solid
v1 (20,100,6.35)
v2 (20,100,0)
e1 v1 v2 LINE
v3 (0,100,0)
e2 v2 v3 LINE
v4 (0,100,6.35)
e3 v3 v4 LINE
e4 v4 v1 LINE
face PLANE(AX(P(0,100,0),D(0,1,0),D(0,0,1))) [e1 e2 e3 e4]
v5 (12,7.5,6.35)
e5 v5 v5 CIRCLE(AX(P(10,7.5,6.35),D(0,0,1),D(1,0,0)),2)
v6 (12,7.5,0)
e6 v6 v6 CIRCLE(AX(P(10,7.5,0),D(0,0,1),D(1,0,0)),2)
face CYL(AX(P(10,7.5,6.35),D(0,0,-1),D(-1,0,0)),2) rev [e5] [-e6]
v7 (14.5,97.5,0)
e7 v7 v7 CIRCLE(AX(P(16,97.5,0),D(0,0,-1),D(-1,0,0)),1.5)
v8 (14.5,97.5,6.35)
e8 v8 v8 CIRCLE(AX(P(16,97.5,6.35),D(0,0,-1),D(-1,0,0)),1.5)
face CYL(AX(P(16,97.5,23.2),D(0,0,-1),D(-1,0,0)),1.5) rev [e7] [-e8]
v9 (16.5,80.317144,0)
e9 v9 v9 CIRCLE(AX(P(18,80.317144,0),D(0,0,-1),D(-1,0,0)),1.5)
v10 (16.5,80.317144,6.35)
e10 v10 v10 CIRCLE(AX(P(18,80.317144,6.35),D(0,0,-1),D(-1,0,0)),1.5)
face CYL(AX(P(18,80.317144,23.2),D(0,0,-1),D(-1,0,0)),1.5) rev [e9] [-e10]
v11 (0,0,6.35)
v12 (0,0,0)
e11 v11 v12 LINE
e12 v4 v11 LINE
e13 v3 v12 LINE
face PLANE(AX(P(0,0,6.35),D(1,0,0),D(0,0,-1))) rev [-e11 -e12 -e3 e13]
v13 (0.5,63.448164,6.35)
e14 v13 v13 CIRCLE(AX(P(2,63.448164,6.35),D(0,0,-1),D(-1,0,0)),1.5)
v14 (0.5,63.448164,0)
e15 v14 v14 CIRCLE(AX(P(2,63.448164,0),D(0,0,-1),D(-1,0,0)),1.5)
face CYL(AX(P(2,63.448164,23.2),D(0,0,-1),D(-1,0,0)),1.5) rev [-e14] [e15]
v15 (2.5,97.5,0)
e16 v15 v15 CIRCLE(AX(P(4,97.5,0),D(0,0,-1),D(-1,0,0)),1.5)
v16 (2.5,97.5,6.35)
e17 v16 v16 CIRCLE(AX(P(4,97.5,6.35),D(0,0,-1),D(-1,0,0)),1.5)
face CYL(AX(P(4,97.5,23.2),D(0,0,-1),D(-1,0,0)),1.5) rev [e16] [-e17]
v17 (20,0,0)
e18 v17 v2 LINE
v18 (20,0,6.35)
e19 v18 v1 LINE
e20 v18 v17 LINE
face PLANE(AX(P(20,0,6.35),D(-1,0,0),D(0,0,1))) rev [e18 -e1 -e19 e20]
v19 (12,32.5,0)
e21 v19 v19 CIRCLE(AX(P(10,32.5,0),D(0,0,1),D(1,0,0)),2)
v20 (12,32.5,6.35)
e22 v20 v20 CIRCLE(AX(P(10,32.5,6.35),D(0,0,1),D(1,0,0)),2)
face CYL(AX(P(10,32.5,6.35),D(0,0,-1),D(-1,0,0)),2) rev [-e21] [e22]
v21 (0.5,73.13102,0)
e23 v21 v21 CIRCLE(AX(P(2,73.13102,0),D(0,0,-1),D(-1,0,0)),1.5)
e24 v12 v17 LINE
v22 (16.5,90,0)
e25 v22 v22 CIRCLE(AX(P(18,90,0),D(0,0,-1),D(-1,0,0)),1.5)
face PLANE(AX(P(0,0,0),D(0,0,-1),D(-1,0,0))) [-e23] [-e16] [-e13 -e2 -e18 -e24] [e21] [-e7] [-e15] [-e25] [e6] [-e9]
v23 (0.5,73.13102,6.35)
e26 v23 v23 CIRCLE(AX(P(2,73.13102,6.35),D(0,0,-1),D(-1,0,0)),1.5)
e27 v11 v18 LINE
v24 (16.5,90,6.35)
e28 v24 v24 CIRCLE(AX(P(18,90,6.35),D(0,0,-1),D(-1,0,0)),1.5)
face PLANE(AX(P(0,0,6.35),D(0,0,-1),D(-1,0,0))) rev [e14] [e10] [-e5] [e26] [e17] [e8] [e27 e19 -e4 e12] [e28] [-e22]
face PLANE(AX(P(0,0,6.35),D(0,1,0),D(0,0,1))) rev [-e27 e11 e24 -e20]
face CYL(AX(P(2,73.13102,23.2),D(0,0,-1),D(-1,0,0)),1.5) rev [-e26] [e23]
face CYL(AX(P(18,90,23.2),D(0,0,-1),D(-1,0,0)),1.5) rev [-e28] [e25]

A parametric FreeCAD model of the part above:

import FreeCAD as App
import Part
import Sketcher

V = App.Vector
Q = App.Units.Quantity


def add_polygon(sketch, points):
    """Adds a closed chain of lines whose ends are joined by coincident constraints."""
    first, n = sketch.GeometryCount, len(points)
    for a, b in zip(points, points[1:] + points[:1]):
        sketch.addGeometry(Part.LineSegment(App.Vector(*a, 0), App.Vector(*b, 0)), False)
    for i in range(n):
        sketch.addConstraint(Sketcher.Constraint("Coincident", first + i, 2, first + (i + 1) % n, 1))

doc = App.newDocument("Part")
params = doc.addObject("Spreadsheet::Sheet", "Params")
for row, (alias, value) in enumerate([
    ("sketch1_diameter", "4 mm"),
    ("sketch1_width", "20 mm"),
    ("sketch1_height", "40 mm"),
    ("pad1_length", "6.35 mm"),
    ("sketch2_width", "20 mm"),
    ("sketch2_height", "6.35 mm"),
    ("pad2_length", "60 mm"),
    ("sketch3_diameter", "3 mm"),
    ("pocket1_length", "23.2 mm"),
], start=1):
    params.set(f"A{row}", alias)
    params.set(f"B{row}", "=" + value)
    params.setAlias(f"B{row}", alias)

body = doc.addObject("PartDesign::Body", "Body")

# Sketch on XY plane
sketch1 = body.newObject("Sketcher::SketchObject", "Sketch")
sketch1.AttachmentSupport = (doc.getObject("XY_Plane"), [""])
sketch1.MapMode = "FlatFace"
add_polygon(sketch1, [(0, 40), (0, 0), (20, 0), (20, 40)])  # lines 0-3
sketch1.addGeometry(Part.Circle(V(10, 7.5, 0), V(0, 0, 1), 2), False)  # 4
sketch1.addGeometry(Part.Circle(V(10, 32.5, 0), V(0, 0, 1), 2), False)  # 5
sketch1.addConstraint([
    Sketcher.Constraint("Vertical", 0),
    Sketcher.Constraint("Horizontal", 1),
    Sketcher.Constraint("Vertical", 2),
    Sketcher.Constraint("Horizontal", 3),
    Sketcher.Constraint("Coincident", 0, 2, -1, 1),
    Sketcher.Constraint("Equal", 4, 5),
    Sketcher.Constraint("Vertical", 4, 3, 5, 3),
    Sketcher.Constraint("Diameter", 4, Q("4 mm")),
    Sketcher.Constraint("DistanceX", 1, 1, 1, 2, Q("20 mm")),
    Sketcher.Constraint("DistanceY", 0, 2, 0, 1, Q("40 mm")),
    Sketcher.Constraint("DistanceX", -1, 1, 4, 3, Q("10 mm")),
    Sketcher.Constraint("DistanceY", 4, 3, 5, 3, Q("25 mm")),
    Sketcher.Constraint("DistanceY", -1, 1, 4, 3, Q("7.5 mm")),
])
sketch1.setExpression("Constraints[11]", "Params.sketch1_diameter")
sketch1.setExpression("Constraints[12]", "Params.sketch1_width")
sketch1.setExpression("Constraints[13]", "Params.sketch1_height")
pad1 = body.newObject("PartDesign::Pad", "Pad")
pad1.Profile = sketch1
pad1.setExpression("Length", "Params.pad1_length")

# Sketch on XZ plane
sketch2 = body.newObject("Sketcher::SketchObject", "Sketch001")
sketch2.AttachmentSupport = (doc.getObject("XZ_Plane"), [""])
sketch2.MapMode = "FlatFace"
sketch2.AttachmentOffset = App.Placement(V(0, 0, -40), App.Rotation())
add_polygon(sketch2, [(0, 0), (0, 6), (20, 6), (20, 0)])  # lines 0-3
sketch2.addConstraint([
    Sketcher.Constraint("Vertical", 0),
    Sketcher.Constraint("Horizontal", 1),
    Sketcher.Constraint("Vertical", 2),
    Sketcher.Constraint("Horizontal", 3),
    Sketcher.Constraint("Coincident", 3, 2, -1, 1),
    Sketcher.Constraint("DistanceX", 1, 1, 1, 2, Q("20 mm")),
    Sketcher.Constraint("DistanceY", 0, 1, 0, 2, Q("6.35 mm")),
])
sketch2.setExpression("Constraints[9]", "Params.sketch2_width")
sketch2.setExpression("Constraints[10]", "Params.sketch2_height")
pad2 = body.newObject("PartDesign::Pad", "Pad001")
pad2.Profile = sketch2
pad2.setExpression("Length", "Params.pad2_length")
pad2.Reversed = True

# Sketch on XY plane
sketch3 = body.newObject("Sketcher::SketchObject", "Sketch002")
sketch3.AttachmentSupport = (doc.getObject("XY_Plane"), [""])
sketch3.MapMode = "FlatFace"
sketch3.addGeometry([
    Part.Circle(V(16, 97.5, 0), V(0, 0, 1), 1.5),  # 0
    Part.Circle(V(4, 97.5, 0), V(0, 0, 1), 1.5),  # 1
    Part.Circle(V(18, 90, 0), V(0, 0, 1), 1.5),  # 2
    Part.Circle(V(2, 63.4, 0), V(0, 0, 1), 1.5),  # 3
    Part.Circle(V(2, 73.1, 0), V(0, 0, 1), 1.5),  # 4
    Part.Circle(V(18, 80.3, 0), V(0, 0, 1), 1.5),  # 5
], False)
sketch3.addConstraint([
    Sketcher.Constraint("Equal", 0, 1),
    Sketcher.Constraint("Equal", 1, 2),
    Sketcher.Constraint("Equal", 2, 3),
    Sketcher.Constraint("Equal", 3, 4),
    Sketcher.Constraint("Equal", 4, 5),
    Sketcher.Constraint("Horizontal", 0, 3, 1, 3),
    Sketcher.Constraint("Vertical", 3, 3, 4, 3),
    Sketcher.Constraint("Vertical", 2, 3, 5, 3),
    Sketcher.Constraint("Diameter", 0, Q("3 mm")),
    Sketcher.Constraint("DistanceX", -1, 1, 0, 3, Q("16 mm")),
    Sketcher.Constraint("DistanceX", -1, 1, 1, 3, Q("4 mm")),
    Sketcher.Constraint("DistanceX", -1, 1, 2, 3, Q("18 mm")),
    Sketcher.Constraint("DistanceY", -1, 1, 2, 3, Q("90 mm")),
    Sketcher.Constraint("DistanceX", -1, 1, 3, 3, Q("2 mm")),
    Sketcher.Constraint("DistanceY", -1, 1, 0, 3, Q("97.5 mm")),
    Sketcher.Constraint("DistanceY", -1, 1, 4, 3, Q("73.13102 mm")),
    Sketcher.Constraint("DistanceY", 3, 3, 5, 3, Q("16.86898 mm")),
    Sketcher.Constraint("DistanceY", -1, 1, 3, 3, Q("63.448164 mm")),
])
sketch3.setExpression("Constraints[8]", "Params.sketch3_diameter")
pocket1 = body.newObject("PartDesign::Pocket", "Pocket")
pocket1.Profile = sketch3
pocket1.setExpression("Length", "Params.pocket1_length")
pocket1.Reversed = True

doc.recompute()
